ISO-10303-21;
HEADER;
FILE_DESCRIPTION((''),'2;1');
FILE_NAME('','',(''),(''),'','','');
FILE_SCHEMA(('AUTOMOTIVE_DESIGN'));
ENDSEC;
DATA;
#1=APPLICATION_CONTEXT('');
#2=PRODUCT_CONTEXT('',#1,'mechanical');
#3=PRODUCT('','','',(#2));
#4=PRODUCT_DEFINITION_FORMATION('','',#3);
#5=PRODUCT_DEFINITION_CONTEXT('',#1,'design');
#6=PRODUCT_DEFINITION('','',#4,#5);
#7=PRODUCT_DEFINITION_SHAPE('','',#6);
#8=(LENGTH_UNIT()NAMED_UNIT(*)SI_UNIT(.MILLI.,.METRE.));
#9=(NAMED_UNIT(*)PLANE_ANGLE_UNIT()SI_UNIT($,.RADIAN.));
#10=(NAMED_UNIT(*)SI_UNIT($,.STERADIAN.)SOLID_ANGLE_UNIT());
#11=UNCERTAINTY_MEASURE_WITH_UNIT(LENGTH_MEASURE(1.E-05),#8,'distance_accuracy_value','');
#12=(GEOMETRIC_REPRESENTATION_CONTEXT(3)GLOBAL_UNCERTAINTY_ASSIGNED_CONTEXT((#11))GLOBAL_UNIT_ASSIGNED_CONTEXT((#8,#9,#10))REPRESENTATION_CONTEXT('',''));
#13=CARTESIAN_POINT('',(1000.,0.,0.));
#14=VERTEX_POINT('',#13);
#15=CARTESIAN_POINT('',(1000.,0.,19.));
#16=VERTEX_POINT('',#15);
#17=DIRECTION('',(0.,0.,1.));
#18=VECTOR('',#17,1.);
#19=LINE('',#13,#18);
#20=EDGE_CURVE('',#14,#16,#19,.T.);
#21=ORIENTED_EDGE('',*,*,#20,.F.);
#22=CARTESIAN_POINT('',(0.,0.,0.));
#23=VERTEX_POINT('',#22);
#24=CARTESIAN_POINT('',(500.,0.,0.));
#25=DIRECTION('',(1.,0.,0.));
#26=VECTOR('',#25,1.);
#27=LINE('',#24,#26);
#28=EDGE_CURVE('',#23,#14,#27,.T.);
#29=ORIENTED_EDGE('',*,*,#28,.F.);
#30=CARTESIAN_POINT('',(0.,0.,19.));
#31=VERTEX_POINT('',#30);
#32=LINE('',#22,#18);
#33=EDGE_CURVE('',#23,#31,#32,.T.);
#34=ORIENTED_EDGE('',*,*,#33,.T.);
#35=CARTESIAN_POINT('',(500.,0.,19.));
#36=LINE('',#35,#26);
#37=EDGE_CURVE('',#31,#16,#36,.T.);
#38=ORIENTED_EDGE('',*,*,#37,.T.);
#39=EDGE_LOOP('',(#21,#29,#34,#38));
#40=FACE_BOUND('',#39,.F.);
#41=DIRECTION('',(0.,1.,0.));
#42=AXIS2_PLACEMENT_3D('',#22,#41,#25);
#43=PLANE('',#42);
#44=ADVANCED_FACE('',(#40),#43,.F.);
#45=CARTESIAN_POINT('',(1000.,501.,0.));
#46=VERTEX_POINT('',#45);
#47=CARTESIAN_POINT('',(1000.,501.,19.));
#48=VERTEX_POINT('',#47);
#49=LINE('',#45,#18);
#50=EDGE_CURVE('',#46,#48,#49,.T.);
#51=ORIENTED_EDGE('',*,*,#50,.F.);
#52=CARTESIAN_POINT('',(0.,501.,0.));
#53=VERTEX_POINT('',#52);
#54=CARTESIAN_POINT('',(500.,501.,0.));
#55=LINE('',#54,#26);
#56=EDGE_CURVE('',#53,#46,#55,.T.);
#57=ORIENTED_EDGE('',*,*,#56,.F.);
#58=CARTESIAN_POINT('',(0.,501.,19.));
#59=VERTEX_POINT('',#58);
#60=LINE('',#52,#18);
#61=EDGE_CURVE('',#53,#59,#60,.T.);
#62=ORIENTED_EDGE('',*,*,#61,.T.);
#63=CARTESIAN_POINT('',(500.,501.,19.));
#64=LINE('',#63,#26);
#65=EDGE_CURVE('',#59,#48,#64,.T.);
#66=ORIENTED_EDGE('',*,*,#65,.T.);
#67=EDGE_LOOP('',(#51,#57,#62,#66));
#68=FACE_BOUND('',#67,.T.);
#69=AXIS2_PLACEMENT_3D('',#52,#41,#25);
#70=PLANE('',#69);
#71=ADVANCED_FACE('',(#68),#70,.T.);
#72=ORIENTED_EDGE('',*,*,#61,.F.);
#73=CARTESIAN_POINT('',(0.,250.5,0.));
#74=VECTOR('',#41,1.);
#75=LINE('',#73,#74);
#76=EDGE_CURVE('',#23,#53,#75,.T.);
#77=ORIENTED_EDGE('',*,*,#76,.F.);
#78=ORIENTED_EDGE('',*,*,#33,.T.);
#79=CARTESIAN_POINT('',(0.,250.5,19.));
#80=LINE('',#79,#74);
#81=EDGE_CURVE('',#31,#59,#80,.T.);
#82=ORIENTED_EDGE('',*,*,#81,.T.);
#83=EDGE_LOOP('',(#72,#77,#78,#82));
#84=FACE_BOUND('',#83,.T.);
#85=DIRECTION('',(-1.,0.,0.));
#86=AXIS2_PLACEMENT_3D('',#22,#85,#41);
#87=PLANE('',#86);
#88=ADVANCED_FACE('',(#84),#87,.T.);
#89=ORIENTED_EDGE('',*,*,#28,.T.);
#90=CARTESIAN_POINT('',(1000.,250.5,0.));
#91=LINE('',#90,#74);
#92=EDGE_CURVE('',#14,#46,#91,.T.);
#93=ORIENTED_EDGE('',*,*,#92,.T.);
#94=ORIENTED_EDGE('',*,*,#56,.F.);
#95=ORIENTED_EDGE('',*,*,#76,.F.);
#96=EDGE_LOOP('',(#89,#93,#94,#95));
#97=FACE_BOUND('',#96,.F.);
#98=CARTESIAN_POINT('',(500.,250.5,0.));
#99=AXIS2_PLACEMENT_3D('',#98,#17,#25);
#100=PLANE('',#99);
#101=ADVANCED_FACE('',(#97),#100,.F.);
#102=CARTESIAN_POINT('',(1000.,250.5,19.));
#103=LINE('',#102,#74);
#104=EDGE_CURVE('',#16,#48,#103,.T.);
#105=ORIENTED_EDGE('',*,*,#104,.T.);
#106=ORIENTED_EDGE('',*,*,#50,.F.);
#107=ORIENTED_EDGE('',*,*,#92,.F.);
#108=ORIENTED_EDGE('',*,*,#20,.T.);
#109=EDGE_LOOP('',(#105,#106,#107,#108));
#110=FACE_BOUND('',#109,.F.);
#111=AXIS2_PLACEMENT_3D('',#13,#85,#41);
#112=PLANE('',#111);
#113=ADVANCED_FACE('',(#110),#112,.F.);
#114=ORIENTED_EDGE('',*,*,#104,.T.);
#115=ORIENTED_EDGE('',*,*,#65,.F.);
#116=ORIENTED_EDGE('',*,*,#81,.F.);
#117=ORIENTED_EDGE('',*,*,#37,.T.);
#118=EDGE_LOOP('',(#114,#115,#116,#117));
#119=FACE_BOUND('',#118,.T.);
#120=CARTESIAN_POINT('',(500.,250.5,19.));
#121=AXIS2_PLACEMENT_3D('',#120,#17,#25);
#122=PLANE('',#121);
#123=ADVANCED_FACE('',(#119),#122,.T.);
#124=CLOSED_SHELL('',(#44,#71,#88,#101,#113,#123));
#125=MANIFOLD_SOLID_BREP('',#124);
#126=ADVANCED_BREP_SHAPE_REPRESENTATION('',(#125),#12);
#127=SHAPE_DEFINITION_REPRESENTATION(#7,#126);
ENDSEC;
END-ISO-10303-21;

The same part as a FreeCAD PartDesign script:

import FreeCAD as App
import Part
import Sketcher

V = App.Vector
Q = App.Units.Quantity


def add_polygon(sketch, points):
    """Adds a closed chain of lines whose ends are joined by coincident constraints."""
    first, n = sketch.GeometryCount, len(points)
    for a, b in zip(points, points[1:] + points[:1]):
        sketch.addGeometry(Part.LineSegment(App.Vector(*a, 0), App.Vector(*b, 0)), False)
    for i in range(n):
        sketch.addConstraint(Sketcher.Constraint("Coincident", first + i, 2, first + (i + 1) % n, 1))

doc = App.newDocument("Part")
body = doc.addObject("PartDesign::Body", "Body")

# Sketch on XY plane
sketch1 = body.newObject("Sketcher::SketchObject", "Sketch")
sketch1.AttachmentSupport = (doc.getObject("XY_Plane"), [""])
sketch1.MapMode = "FlatFace"
add_polygon(sketch1, [(0, 501), (0, 0), (1000, 0), (1000, 501)])  # lines 0-3
sketch1.addConstraint(Sketcher.Constraint("Vertical", 0))
sketch1.addConstraint(Sketcher.Constraint("Horizontal", 1))
sketch1.addConstraint(Sketcher.Constraint("Vertical", 2))
sketch1.addConstraint(Sketcher.Constraint("Horizontal", 3))
sketch1.addConstraint(Sketcher.Constraint("Coincident", 0, 2, -1, 1))
sketch1.addConstraint(Sketcher.Constraint("DistanceX", 1, 1, 1, 2, Q("1000 mm")))
sketch1.addConstraint(Sketcher.Constraint("DistanceY", 0, 2, 0, 1, Q("501 mm")))
pad1 = body.newObject("PartDesign::Pad", "Pad")
pad1.Profile = sketch1
pad1.Length = 19

doc.recompute()
